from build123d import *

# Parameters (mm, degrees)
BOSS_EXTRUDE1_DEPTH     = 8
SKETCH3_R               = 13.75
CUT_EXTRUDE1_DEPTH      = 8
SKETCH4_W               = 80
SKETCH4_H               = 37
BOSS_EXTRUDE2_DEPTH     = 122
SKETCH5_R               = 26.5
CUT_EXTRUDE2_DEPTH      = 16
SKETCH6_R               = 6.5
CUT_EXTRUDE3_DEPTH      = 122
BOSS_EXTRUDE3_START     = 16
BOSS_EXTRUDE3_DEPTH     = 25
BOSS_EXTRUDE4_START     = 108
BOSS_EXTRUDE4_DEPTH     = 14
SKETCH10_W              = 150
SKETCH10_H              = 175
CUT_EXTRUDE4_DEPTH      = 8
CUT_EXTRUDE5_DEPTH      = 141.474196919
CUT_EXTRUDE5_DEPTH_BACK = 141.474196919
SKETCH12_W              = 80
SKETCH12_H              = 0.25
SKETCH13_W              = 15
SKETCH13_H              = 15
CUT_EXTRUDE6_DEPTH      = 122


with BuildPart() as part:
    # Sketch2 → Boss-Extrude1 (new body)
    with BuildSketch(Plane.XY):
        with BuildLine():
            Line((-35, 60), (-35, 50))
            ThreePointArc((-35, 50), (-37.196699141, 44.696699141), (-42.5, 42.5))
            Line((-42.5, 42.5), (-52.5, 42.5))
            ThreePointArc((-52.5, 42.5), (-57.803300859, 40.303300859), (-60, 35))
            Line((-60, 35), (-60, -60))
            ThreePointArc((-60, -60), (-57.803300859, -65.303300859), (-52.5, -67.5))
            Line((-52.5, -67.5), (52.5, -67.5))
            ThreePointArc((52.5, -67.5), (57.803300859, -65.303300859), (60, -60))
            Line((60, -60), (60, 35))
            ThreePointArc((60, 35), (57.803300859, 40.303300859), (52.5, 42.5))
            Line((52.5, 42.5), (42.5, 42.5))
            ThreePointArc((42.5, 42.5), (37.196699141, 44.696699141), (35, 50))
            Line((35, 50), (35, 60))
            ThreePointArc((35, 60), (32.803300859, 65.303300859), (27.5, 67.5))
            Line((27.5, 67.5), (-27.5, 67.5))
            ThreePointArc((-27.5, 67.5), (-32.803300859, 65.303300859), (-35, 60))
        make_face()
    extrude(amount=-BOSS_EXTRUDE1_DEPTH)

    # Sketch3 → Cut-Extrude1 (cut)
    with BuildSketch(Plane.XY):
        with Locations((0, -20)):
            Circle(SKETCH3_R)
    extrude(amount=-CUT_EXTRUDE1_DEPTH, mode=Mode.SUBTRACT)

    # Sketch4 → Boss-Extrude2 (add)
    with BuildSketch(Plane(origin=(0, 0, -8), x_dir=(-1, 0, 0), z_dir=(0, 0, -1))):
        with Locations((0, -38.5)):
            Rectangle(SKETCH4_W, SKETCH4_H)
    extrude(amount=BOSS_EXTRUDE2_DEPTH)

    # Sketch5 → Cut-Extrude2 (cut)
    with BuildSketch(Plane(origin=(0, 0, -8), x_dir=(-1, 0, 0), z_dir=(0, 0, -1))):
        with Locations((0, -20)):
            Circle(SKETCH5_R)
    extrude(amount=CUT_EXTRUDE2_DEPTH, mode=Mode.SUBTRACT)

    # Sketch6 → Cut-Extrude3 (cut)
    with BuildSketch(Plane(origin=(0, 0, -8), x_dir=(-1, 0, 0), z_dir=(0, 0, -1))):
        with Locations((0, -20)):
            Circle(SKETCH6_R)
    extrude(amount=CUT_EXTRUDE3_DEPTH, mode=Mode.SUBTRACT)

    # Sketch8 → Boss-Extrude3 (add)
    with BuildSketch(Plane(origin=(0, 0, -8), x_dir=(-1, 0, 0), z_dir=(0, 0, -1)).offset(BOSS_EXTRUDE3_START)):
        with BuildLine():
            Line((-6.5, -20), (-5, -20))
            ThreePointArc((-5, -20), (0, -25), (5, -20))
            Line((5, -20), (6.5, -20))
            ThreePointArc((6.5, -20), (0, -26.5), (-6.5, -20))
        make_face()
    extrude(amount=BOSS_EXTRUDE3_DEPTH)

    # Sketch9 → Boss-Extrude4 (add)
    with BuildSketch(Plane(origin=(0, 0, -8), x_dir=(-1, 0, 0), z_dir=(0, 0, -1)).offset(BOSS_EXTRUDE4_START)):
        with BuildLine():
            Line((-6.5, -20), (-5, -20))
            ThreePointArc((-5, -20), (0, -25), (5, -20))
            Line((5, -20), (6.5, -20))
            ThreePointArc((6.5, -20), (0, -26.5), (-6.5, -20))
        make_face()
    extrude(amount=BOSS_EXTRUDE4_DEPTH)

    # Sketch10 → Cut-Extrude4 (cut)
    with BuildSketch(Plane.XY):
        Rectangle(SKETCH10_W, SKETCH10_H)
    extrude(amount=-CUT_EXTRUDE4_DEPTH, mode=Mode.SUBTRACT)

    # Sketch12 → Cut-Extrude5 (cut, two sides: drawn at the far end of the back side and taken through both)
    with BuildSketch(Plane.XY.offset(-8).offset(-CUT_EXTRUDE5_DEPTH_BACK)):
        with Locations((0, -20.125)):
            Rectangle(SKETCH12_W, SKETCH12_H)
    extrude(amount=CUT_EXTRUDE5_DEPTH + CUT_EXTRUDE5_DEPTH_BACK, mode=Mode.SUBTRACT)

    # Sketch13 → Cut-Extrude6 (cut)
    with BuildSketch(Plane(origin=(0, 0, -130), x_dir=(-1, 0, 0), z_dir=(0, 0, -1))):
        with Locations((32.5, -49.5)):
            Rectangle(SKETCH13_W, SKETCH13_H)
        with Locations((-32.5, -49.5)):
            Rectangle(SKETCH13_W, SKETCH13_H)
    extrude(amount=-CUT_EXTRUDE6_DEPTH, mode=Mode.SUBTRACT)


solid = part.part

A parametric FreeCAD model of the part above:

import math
import FreeCAD as App
import Part
import Sketcher

V = App.Vector

doc = App.newDocument("Part")
params = doc.addObject("Spreadsheet::Sheet", "Params")
for row, (alias, value) in enumerate([
    ("sketch1_radius", "7.5 mm"),
    ("sketch1_width", "10 mm"),
    ("sketch1_width2", "105 mm"),
    ("sketch1_height", "95 mm"),
    ("pad1_length", "8 mm"),
    ("sketch2_diameter", "27.5 mm"),
    ("pocket1_length", "8 mm"),
    ("sketch3_width", "80 mm"),
    ("sketch3_height", "37 mm"),
    ("pad2_length", "122 mm"),
    ("sketch4_diameter", "53 mm"),
    ("pocket2_length", "16 mm"),
    ("sketch5_diameter", "13 mm"),
    ("pocket3_length", "122 mm"),
    ("sketch6_radius", "5 mm"),
    ("sketch6_radius2", "6.5 mm"),
    ("pad3_length", "25 mm"),
    ("sketch7_radius", "5 mm"),
    ("sketch7_radius2", "6.5 mm"),
    ("pad4_length", "14 mm"),
    ("sketch8_width", "150 mm"),
    ("sketch8_height", "175 mm"),
    ("pocket4_length", "8 mm"),
    ("sketch9_width", "80 mm"),
    ("sketch9_height", "0.25 mm"),
    ("sketch10_width", "15 mm"),
    ("pocket6_length", "122 mm"),
], start=1):
    params.set(f"A{row}", alias)
    params.set(f"B{row}", "=" + value)
    params.setAlias(f"B{row}", alias)

body = doc.addObject("PartDesign::Body", "Body")

# Sketch on XY plane
sketch1 = body.newObject("Sketcher::SketchObject", "Sketch")
sketch1.AttachmentSupport = (doc.getObject("XY_Plane"), [""])
sketch1.MapMode = "FlatFace"
sketch1.addGeometry([
    Part.LineSegment(V(-35, 60, 0), V(-35, 50, 0)),  # 0
    Part.ArcOfCircle(Part.Circle(V(-42, 50, 0), V(0, 0, 1), 8), math.radians(-90), math.radians(0)),  # 1
    Part.LineSegment(V(-42, 42, 0), V(-52, 42, 0)),  # 2
    Part.ArcOfCircle(Part.Circle(V(-52, 35, 0), V(0, 0, 1), 8), math.radians(90), math.radians(180)),  # 3
    Part.LineSegment(V(-60, 35, 0), V(-60, -60, 0)),  # 4
    Part.ArcOfCircle(Part.Circle(V(-52, -60, 0), V(0, 0, 1), 8), math.radians(180), math.radians(270)),  # 5
    Part.LineSegment(V(-52, -68, 0), V(52, -68, 0)),  # 6
    Part.ArcOfCircle(Part.Circle(V(52, -60, 0), V(0, 0, 1), 8), math.radians(-90), math.radians(0)),  # 7
    Part.LineSegment(V(60, -60, 0), V(60, 35, 0)),  # 8
    Part.ArcOfCircle(Part.Circle(V(52, 35, 0), V(0, 0, 1), 8), math.radians(0), math.radians(90)),  # 9
    Part.LineSegment(V(52, 42, 0), V(42, 42, 0)),  # 10
    Part.ArcOfCircle(Part.Circle(V(42, 50, 0), V(0, 0, 1), 8), math.radians(180), math.radians(270)),  # 11
    Part.LineSegment(V(35, 50, 0), V(35, 60, 0)),  # 12
    Part.ArcOfCircle(Part.Circle(V(28, 60, 0), V(0, 0, 1), 8), math.radians(0), math.radians(90)),  # 13
    Part.LineSegment(V(28, 68, 0), V(-28, 68, 0)),  # 14
    Part.ArcOfCircle(Part.Circle(V(-28, 60, 0), V(0, 0, 1), 8), math.radians(90), math.radians(180)),  # 15
], False)
sketch1.addConstraint([
    Sketcher.Constraint("Tangent", 0, 2, 1, 2),
    Sketcher.Constraint("Tangent", 1, 1, 2, 1),
    Sketcher.Constraint("Tangent", 2, 2, 3, 1),
    Sketcher.Constraint("Tangent", 3, 2, 4, 1),
    Sketcher.Constraint("Tangent", 4, 2, 5, 1),
    Sketcher.Constraint("Tangent", 5, 2, 6, 1),
    Sketcher.Constraint("Tangent", 6, 2, 7, 1),
    Sketcher.Constraint("Tangent", 7, 2, 8, 1),
    Sketcher.Constraint("Tangent", 8, 2, 9, 1),
    Sketcher.Constraint("Tangent", 9, 2, 10, 1),
    Sketcher.Constraint("Tangent", 10, 2, 11, 2),
    Sketcher.Constraint("Tangent", 11, 1, 12, 1),
    Sketcher.Constraint("Tangent", 12, 2, 13, 1),
    Sketcher.Constraint("Tangent", 13, 2, 14, 1),
    Sketcher.Constraint("Tangent", 14, 2, 15, 1),
    Sketcher.Constraint("Tangent", 15, 2, 0, 1),
    Sketcher.Constraint("Vertical", 0),
    Sketcher.Constraint("Horizontal", 2),
    Sketcher.Constraint("Vertical", 4),
    Sketcher.Constraint("Horizontal", 6),
    Sketcher.Constraint("Vertical", 8),
    Sketcher.Constraint("Horizontal", 10),
    Sketcher.Constraint("Vertical", 12),
    Sketcher.Constraint("Horizontal", 14),
    Sketcher.Constraint("Equal", 1, 3),
    Sketcher.Constraint("Equal", 3, 5),
    Sketcher.Constraint("Equal", 5, 7),
    Sketcher.Constraint("Equal", 7, 9),
    Sketcher.Constraint("Equal", 9, 11),
    Sketcher.Constraint("Equal", 11, 13),
    Sketcher.Constraint("Equal", 13, 15),
    Sketcher.Constraint("Symmetric", 3, 3, 9, 3, -2),
    Sketcher.Constraint("Equal", 2, 10),
    Sketcher.Constraint("Equal", 10, 0),
    Sketcher.Constraint("Radius", 1, 7.5),
    Sketcher.Constraint("DistanceX", 2, 2, 2, 1, 10.0),
    Sketcher.Constraint("DistanceX", 6, 1, 6, 2, 105.0),
    Sketcher.Constraint("DistanceY", 4, 2, 4, 1, 95.0),
    Sketcher.Constraint("DistanceY", -1, 1, 1, 3, 50.0),
])
sketch1.setExpression("Constraints[34]", "Params.sketch1_radius")
sketch1.setExpression("Constraints[35]", "Params.sketch1_width")
sketch1.setExpression("Constraints[36]", "Params.sketch1_width2")
sketch1.setExpression("Constraints[37]", "Params.sketch1_height")
pad1 = body.newObject("PartDesign::Pad", "Pad")
pad1.Profile = sketch1
pad1.setExpression("Length", "Params.pad1_length")
pad1.Reversed = True

# Sketch on XY plane
sketch2 = body.newObject("Sketcher::SketchObject", "Sketch001")
sketch2.AttachmentSupport = (doc.getObject("XY_Plane"), [""])
sketch2.MapMode = "FlatFace"
sketch2.addGeometry(Part.Circle(V(0, -20, 0), V(0, 0, 1), 14), False)
sketch2.addConstraint([
    Sketcher.Constraint("PointOnObject", 0, 3, -2),
    Sketcher.Constraint("Diameter", 0, 27.5),
    Sketcher.Constraint("DistanceY", 0, 3, -1, 1, 20.0),
])
sketch2.setExpression("Constraints[1]", "Params.sketch2_diameter")
pocket1 = body.newObject("PartDesign::Pocket", "Pocket")
pocket1.Profile = sketch2
pocket1.setExpression("Length", "Params.pocket1_length")

# Sketch on XY plane
sketch3 = body.newObject("Sketcher::SketchObject", "Sketch002")
sketch3.AttachmentSupport = (doc.getObject("XY_Plane"), [""])
sketch3.MapMode = "FlatFace"
sketch3.AttachmentOffset = App.Placement(V(0, 0, -8), App.Rotation())
sketch3.addGeometry([
    Part.LineSegment(V(40, -20, 0), V(40, -57, 0)),
    Part.LineSegment(V(40, -57, 0), V(-40, -57, 0)),
    Part.LineSegment(V(-40, -57, 0), V(-40, -20, 0)),
    Part.LineSegment(V(-40, -20, 0), V(40, -20, 0)),
], False)
sketch3.addConstraint([
    Sketcher.Constraint("Coincident", 0, 2, 1, 1),
    Sketcher.Constraint("Coincident", 1, 2, 2, 1),
    Sketcher.Constraint("Coincident", 2, 2, 3, 1),
    Sketcher.Constraint("Coincident", 3, 2, 0, 1),
    Sketcher.Constraint("Vertical", 0),
    Sketcher.Constraint("Horizontal", 1),
    Sketcher.Constraint("Vertical", 2),
    Sketcher.Constraint("Horizontal", 3),
    Sketcher.Constraint("DistanceX", 1, 2, 1, 1, 80.0),
    Sketcher.Constraint("DistanceY", 0, 2, 0, 1, 37.0),
    Sketcher.Constraint("DistanceX", -1, 1, 0, 2, 40.0),
    Sketcher.Constraint("DistanceY", 0, 2, -1, 1, 57.0),
])
sketch3.setExpression("Constraints[8]", "Params.sketch3_width")
sketch3.setExpression("Constraints[9]", "Params.sketch3_height")
pad2 = body.newObject("PartDesign::Pad", "Pad001")
pad2.Profile = sketch3
pad2.setExpression("Length", "Params.pad2_length")
pad2.Reversed = True

# Sketch on XY plane
sketch4 = body.newObject("Sketcher::SketchObject", "Sketch003")
sketch4.AttachmentSupport = (doc.getObject("XY_Plane"), [""])
sketch4.MapMode = "FlatFace"
sketch4.AttachmentOffset = App.Placement(V(0, 0, -8), App.Rotation())
sketch4.addGeometry(Part.Circle(V(0, -20, 0), V(0, 0, 1), 26), False)
sketch4.addConstraint([
    Sketcher.Constraint("PointOnObject", 0, 3, -2),
    Sketcher.Constraint("Diameter", 0, 53.0),
    Sketcher.Constraint("DistanceY", 0, 3, -1, 1, 20.0),
])
sketch4.setExpression("Constraints[1]", "Params.sketch4_diameter")
pocket2 = body.newObject("PartDesign::Pocket", "Pocket001")
pocket2.Profile = sketch4
pocket2.setExpression("Length", "Params.pocket2_length")

# Sketch on XY plane
sketch5 = body.newObject("Sketcher::SketchObject", "Sketch004")
sketch5.AttachmentSupport = (doc.getObject("XY_Plane"), [""])
sketch5.MapMode = "FlatFace"
sketch5.AttachmentOffset = App.Placement(V(0, 0, -8), App.Rotation())
sketch5.addGeometry(Part.Circle(V(0, -20, 0), V(0, 0, 1), 6), False)
sketch5.addConstraint([
    Sketcher.Constraint("PointOnObject", 0, 3, -2),
    Sketcher.Constraint("Diameter", 0, 13.0),
    Sketcher.Constraint("DistanceY", 0, 3, -1, 1, 20.0),
])
sketch5.setExpression("Constraints[1]", "Params.sketch5_diameter")
pocket3 = body.newObject("PartDesign::Pocket", "Pocket002")
pocket3.Profile = sketch5
pocket3.setExpression("Length", "Params.pocket3_length")

# Sketch on XY plane
sketch6 = body.newObject("Sketcher::SketchObject", "Sketch005")
sketch6.AttachmentSupport = (doc.getObject("XY_Plane"), [""])
sketch6.MapMode = "FlatFace"
sketch6.AttachmentOffset = App.Placement(V(0, 0, -24), App.Rotation())
sketch6.addGeometry([
    Part.LineSegment(V(5, -20, 0), V(6.5, -20, 0)),
    Part.ArcOfCircle(Part.Circle(V(0, -20, 0), V(0, 0, 1), 6.5), math.radians(180), math.radians(360)),
    Part.LineSegment(V(-6.5, -20, 0), V(-5, -20, 0)),
    Part.ArcOfCircle(Part.Circle(V(0, -20, 0), V(0, 0, 1), 5), math.radians(180), math.radians(360)),
], False)
sketch6.addConstraint([
    Sketcher.Constraint("Coincident", 0, 2, 1, 2),
    Sketcher.Constraint("Coincident", 1, 1, 2, 1),
    Sketcher.Constraint("Coincident", 2, 2, 3, 1),
    Sketcher.Constraint("Coincident", 3, 2, 0, 1),
    Sketcher.Constraint("Horizontal", 0),
    Sketcher.Constraint("Horizontal", 2),
    Sketcher.Constraint("Coincident", 3, 3, 1, 3),
    Sketcher.Constraint("Symmetric", 0, 2, 1, 1, -2),
    Sketcher.Constraint("Horizontal", 3, 3, 0, 2),
    Sketcher.Constraint("Radius", 3, 5.0),
    Sketcher.Constraint("Radius", 1, 6.5),
    Sketcher.Constraint("DistanceY", 1, 3, -1, 1, 20.0),
])
sketch6.setExpression("Constraints[9]", "Params.sketch6_radius")
sketch6.setExpression("Constraints[10]", "Params.sketch6_radius2")
pad3 = body.newObject("PartDesign::Pad", "Pad002")
pad3.Profile = sketch6
pad3.setExpression("Length", "Params.pad3_length")
pad3.Reversed = True

# Sketch on XY plane
sketch7 = body.newObject("Sketcher::SketchObject", "Sketch006")
sketch7.AttachmentSupport = (doc.getObject("XY_Plane"), [""])
sketch7.MapMode = "FlatFace"
sketch7.AttachmentOffset = App.Placement(V(0, 0, -116), App.Rotation())
sketch7.addGeometry([
    Part.LineSegment(V(5, -20, 0), V(6.5, -20, 0)),
    Part.ArcOfCircle(Part.Circle(V(0, -20, 0), V(0, 0, 1), 6.5), math.radians(180), math.radians(360)),
    Part.LineSegment(V(-6.5, -20, 0), V(-5, -20, 0)),
    Part.ArcOfCircle(Part.Circle(V(0, -20, 0), V(0, 0, 1), 5), math.radians(180), math.radians(360)),
], False)
sketch7.addConstraint([
    Sketcher.Constraint("Coincident", 0, 2, 1, 2),
    Sketcher.Constraint("Coincident", 1, 1, 2, 1),
    Sketcher.Constraint("Coincident", 2, 2, 3, 1),
    Sketcher.Constraint("Coincident", 3, 2, 0, 1),
    Sketcher.Constraint("Horizontal", 0),
    Sketcher.Constraint("Horizontal", 2),
    Sketcher.Constraint("Coincident", 3, 3, 1, 3),
    Sketcher.Constraint("Symmetric", 0, 2, 1, 1, -2),
    Sketcher.Constraint("Horizontal", 3, 3, 0, 2),
    Sketcher.Constraint("Radius", 3, 5.0),
    Sketcher.Constraint("Radius", 1, 6.5),
    Sketcher.Constraint("DistanceY", 1, 3, -1, 1, 20.0),
])
sketch7.setExpression("Constraints[9]", "Params.sketch7_radius")
sketch7.setExpression("Constraints[10]", "Params.sketch7_radius2")
pad4 = body.newObject("PartDesign::Pad", "Pad003")
pad4.Profile = sketch7
pad4.setExpression("Length", "Params.pad4_length")
pad4.Reversed = True

# Sketch on XY plane
sketch8 = body.newObject("Sketcher::SketchObject", "Sketch007")
sketch8.AttachmentSupport = (doc.getObject("XY_Plane"), [""])
sketch8.MapMode = "FlatFace"
sketch8.addGeometry([
    Part.LineSegment(V(-75, 88, 0), V(-75, -88, 0)),
    Part.LineSegment(V(-75, -88, 0), V(75, -88, 0)),
    Part.LineSegment(V(75, -88, 0), V(75, 88, 0)),
    Part.LineSegment(V(75, 88, 0), V(-75, 88, 0)),
], False)
sketch8.addConstraint([
    Sketcher.Constraint("Coincident", 0, 2, 1, 1),
    Sketcher.Constraint("Coincident", 1, 2, 2, 1),
    Sketcher.Constraint("Coincident", 2, 2, 3, 1),
    Sketcher.Constraint("Coincident", 3, 2, 0, 1),
    Sketcher.Constraint("Vertical", 0),
    Sketcher.Constraint("Horizontal", 1),
    Sketcher.Constraint("Vertical", 2),
    Sketcher.Constraint("Horizontal", 3),
    Sketcher.Constraint("Symmetric", 0, 2, 2, 2, -1, 1),
    Sketcher.Constraint("DistanceX", 1, 1, 1, 2, 150.0),
    Sketcher.Constraint("DistanceY", 0, 2, 0, 1, 175.0),
])
sketch8.setExpression("Constraints[9]", "Params.sketch8_width")
sketch8.setExpression("Constraints[10]", "Params.sketch8_height")
pocket4 = body.newObject("PartDesign::Pocket", "Pocket003")
pocket4.Profile = sketch8
pocket4.setExpression("Length", "Params.pocket4_length")

# Sketch on XY plane
sketch9 = body.newObject("Sketcher::SketchObject", "Sketch008")
sketch9.AttachmentSupport = (doc.getObject("XY_Plane"), [""])
sketch9.MapMode = "FlatFace"
sketch9.AttachmentOffset = App.Placement(V(0, 0, -8), App.Rotation())
sketch9.addGeometry([
    Part.LineSegment(V(-40, -20, 0), V(-40, -20.25, 0)),
    Part.LineSegment(V(-40, -20.25, 0), V(40, -20.25, 0)),
    Part.LineSegment(V(40, -20.25, 0), V(40, -20, 0)),
    Part.LineSegment(V(40, -20, 0), V(-40, -20, 0)),
], False)
sketch9.addConstraint([
    Sketcher.Constraint("Coincident", 0, 2, 1, 1),
    Sketcher.Constraint("Coincident", 1, 2, 2, 1),
    Sketcher.Constraint("Coincident", 2, 2, 3, 1),
    Sketcher.Constraint("Coincident", 3, 2, 0, 1),
    Sketcher.Constraint("Vertical", 0),
    Sketcher.Constraint("Horizontal", 1),
    Sketcher.Constraint("Vertical", 2),
    Sketcher.Constraint("Horizontal", 3),
    Sketcher.Constraint("DistanceX", 1, 1, 1, 2, 80.0),
    Sketcher.Constraint("DistanceX", 0, 2, -1, 1, 40.0),
    Sketcher.Constraint("DistanceY", 2, 2, -1, 1, 20.0),
    Sketcher.Constraint("DistanceY", 0, 2, 0, 1, 0.25),
])
sketch9.setExpression("Constraints[8]", "Params.sketch9_width")
sketch9.setExpression("Constraints[11]", "Params.sketch9_height")
pocket5 = body.newObject("PartDesign::Pocket", "Pocket004")
pocket5.Profile = sketch9
pocket5.Type = "ThroughAll"
pocket5.Midplane = True

# Sketch on XY plane
sketch10 = body.newObject("Sketcher::SketchObject", "Sketch009")
sketch10.AttachmentSupport = (doc.getObject("XY_Plane"), [""])
sketch10.MapMode = "FlatFace"
sketch10.AttachmentOffset = App.Placement(V(0, 0, -130), App.Rotation())
sketch10.addGeometry([
    Part.LineSegment(V(-25, -42, 0), V(-25, -57, 0)),  # 0
    Part.LineSegment(V(-25, -57, 0), V(-40, -57, 0)),  # 1
    Part.LineSegment(V(-40, -57, 0), V(-40, -42, 0)),  # 2
    Part.LineSegment(V(-40, -42, 0), V(-25, -42, 0)),  # 3
    Part.LineSegment(V(40, -42, 0), V(40, -57, 0)),  # 4
    Part.LineSegment(V(40, -57, 0), V(25, -57, 0)),  # 5
    Part.LineSegment(V(25, -57, 0), V(25, -42, 0)),  # 6
    Part.LineSegment(V(25, -42, 0), V(40, -42, 0)),  # 7
], False)
sketch10.addConstraint([
    Sketcher.Constraint("Coincident", 0, 2, 1, 1),
    Sketcher.Constraint("Coincident", 1, 2, 2, 1),
    Sketcher.Constraint("Coincident", 2, 2, 3, 1),
    Sketcher.Constraint("Coincident", 3, 2, 0, 1),
    Sketcher.Constraint("Coincident", 4, 2, 5, 1),
    Sketcher.Constraint("Coincident", 5, 2, 6, 1),
    Sketcher.Constraint("Coincident", 6, 2, 7, 1),
    Sketcher.Constraint("Coincident", 7, 2, 4, 1),
    Sketcher.Constraint("Vertical", 0),
    Sketcher.Constraint("Horizontal", 1),
    Sketcher.Constraint("Vertical", 2),
    Sketcher.Constraint("Horizontal", 3),
    Sketcher.Constraint("Vertical", 4),
    Sketcher.Constraint("Horizontal", 5),
    Sketcher.Constraint("Vertical", 6),
    Sketcher.Constraint("Horizontal", 7),
    Sketcher.Constraint("Symmetric", 1, 2, 4, 2, -2),
    Sketcher.Constraint("Symmetric", 3, 2, 6, 2, -2),
    Sketcher.Constraint("Equal", 7, 0),
    Sketcher.Constraint("DistanceX", 1, 2, 1, 1, 15.0),
    Sketcher.Constraint("DistanceX", 0, 2, -1, 1, 25.0),
    Sketcher.Constraint("DistanceY", 0, 2, -1, 1, 57.0),
])
sketch10.setExpression("Constraints[19]", "Params.sketch10_width")
pocket6 = body.newObject("PartDesign::Pocket", "Pocket005")
pocket6.Profile = sketch10
pocket6.setExpression("Length", "Params.pocket6_length")
pocket6.Reversed = True

doc.recompute()
